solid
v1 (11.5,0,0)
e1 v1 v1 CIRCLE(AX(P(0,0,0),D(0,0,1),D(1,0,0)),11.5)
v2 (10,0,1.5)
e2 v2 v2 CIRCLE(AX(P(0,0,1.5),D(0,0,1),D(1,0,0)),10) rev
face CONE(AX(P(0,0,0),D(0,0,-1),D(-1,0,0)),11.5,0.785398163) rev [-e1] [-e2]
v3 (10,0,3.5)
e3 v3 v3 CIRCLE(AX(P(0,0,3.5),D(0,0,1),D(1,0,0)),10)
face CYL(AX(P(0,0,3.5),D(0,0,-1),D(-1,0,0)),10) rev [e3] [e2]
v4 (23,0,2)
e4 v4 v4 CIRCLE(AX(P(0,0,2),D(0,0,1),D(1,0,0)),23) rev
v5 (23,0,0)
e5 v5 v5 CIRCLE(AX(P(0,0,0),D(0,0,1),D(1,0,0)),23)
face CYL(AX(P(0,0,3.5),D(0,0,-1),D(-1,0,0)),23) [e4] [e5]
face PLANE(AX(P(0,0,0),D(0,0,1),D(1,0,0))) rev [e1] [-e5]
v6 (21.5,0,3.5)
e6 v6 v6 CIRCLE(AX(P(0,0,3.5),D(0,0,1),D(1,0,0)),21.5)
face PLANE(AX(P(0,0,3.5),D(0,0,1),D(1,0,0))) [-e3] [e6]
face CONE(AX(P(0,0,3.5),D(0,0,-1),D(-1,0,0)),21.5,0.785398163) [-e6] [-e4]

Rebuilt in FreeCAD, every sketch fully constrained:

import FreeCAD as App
import Part
import Sketcher
from FreeCAD import Vector


def edges_at(feature, points):
    """Names of the edges that pass closest to the given points."""
    edges = feature.Shape.Edges
    near = lambda p: min(range(len(edges)), key=lambda i: edges[i].distToShape(Part.Vertex(*p))[0])
    return sorted({f"Edge{near(p) + 1}" for p in points})

doc = App.newDocument("Part")
params = doc.addObject("Spreadsheet::Sheet", "Params")
for row, (alias, value) in enumerate([
    ("sketch1_diameter", "46 mm"),
    ("sketch1_diameter2", "20 mm"),
    ("pad1_length", "3.5 mm"),
    ("chamfer_size", "1.5 mm"),
], start=1):
    params.set(f"A{row}", alias)
    params.set(f"B{row}", "=" + value)
    params.setAlias(f"B{row}", alias)

body = doc.addObject("PartDesign::Body", "Body")

# Sketch on XY plane
sketch1 = body.newObject("Sketcher::SketchObject", "Sketch")
sketch1.AttachmentSupport = (doc.getObject("XY_Plane"), [""])
sketch1.MapMode = "FlatFace"
sketch1.addGeometry([
    Part.Circle(Vector(0, 0, 0), Vector(0, 0, 1), 23),
    Part.Circle(Vector(0, 0, 0), Vector(0, 0, 1), 10),
], False)
sketch1.addConstraint([
    Sketcher.Constraint("Coincident", 0, 3, -1, 1),
    Sketcher.Constraint("Coincident", 1, 3, -1, 1),
    Sketcher.Constraint("Diameter", 0, 46.0),
    Sketcher.Constraint("Diameter", 1, 20.0),
])
sketch1.setExpression("Constraints[2]", "Params.sketch1_diameter")
sketch1.setExpression("Constraints[3]", "Params.sketch1_diameter2")
pad1 = body.newObject("PartDesign::Pad", "Pad")
pad1.Profile = sketch1
pad1.setExpression("Length", "Params.pad1_length")
doc.recompute()

chamfer = body.newObject("PartDesign::Chamfer", "Chamfer")
chamfer.Base = (pad1, edges_at(pad1, [(-23, 0, 3.5), (-10, 0, 0)]))
chamfer.setExpression("Size", "Params.chamfer_size")

doc.recompute()
